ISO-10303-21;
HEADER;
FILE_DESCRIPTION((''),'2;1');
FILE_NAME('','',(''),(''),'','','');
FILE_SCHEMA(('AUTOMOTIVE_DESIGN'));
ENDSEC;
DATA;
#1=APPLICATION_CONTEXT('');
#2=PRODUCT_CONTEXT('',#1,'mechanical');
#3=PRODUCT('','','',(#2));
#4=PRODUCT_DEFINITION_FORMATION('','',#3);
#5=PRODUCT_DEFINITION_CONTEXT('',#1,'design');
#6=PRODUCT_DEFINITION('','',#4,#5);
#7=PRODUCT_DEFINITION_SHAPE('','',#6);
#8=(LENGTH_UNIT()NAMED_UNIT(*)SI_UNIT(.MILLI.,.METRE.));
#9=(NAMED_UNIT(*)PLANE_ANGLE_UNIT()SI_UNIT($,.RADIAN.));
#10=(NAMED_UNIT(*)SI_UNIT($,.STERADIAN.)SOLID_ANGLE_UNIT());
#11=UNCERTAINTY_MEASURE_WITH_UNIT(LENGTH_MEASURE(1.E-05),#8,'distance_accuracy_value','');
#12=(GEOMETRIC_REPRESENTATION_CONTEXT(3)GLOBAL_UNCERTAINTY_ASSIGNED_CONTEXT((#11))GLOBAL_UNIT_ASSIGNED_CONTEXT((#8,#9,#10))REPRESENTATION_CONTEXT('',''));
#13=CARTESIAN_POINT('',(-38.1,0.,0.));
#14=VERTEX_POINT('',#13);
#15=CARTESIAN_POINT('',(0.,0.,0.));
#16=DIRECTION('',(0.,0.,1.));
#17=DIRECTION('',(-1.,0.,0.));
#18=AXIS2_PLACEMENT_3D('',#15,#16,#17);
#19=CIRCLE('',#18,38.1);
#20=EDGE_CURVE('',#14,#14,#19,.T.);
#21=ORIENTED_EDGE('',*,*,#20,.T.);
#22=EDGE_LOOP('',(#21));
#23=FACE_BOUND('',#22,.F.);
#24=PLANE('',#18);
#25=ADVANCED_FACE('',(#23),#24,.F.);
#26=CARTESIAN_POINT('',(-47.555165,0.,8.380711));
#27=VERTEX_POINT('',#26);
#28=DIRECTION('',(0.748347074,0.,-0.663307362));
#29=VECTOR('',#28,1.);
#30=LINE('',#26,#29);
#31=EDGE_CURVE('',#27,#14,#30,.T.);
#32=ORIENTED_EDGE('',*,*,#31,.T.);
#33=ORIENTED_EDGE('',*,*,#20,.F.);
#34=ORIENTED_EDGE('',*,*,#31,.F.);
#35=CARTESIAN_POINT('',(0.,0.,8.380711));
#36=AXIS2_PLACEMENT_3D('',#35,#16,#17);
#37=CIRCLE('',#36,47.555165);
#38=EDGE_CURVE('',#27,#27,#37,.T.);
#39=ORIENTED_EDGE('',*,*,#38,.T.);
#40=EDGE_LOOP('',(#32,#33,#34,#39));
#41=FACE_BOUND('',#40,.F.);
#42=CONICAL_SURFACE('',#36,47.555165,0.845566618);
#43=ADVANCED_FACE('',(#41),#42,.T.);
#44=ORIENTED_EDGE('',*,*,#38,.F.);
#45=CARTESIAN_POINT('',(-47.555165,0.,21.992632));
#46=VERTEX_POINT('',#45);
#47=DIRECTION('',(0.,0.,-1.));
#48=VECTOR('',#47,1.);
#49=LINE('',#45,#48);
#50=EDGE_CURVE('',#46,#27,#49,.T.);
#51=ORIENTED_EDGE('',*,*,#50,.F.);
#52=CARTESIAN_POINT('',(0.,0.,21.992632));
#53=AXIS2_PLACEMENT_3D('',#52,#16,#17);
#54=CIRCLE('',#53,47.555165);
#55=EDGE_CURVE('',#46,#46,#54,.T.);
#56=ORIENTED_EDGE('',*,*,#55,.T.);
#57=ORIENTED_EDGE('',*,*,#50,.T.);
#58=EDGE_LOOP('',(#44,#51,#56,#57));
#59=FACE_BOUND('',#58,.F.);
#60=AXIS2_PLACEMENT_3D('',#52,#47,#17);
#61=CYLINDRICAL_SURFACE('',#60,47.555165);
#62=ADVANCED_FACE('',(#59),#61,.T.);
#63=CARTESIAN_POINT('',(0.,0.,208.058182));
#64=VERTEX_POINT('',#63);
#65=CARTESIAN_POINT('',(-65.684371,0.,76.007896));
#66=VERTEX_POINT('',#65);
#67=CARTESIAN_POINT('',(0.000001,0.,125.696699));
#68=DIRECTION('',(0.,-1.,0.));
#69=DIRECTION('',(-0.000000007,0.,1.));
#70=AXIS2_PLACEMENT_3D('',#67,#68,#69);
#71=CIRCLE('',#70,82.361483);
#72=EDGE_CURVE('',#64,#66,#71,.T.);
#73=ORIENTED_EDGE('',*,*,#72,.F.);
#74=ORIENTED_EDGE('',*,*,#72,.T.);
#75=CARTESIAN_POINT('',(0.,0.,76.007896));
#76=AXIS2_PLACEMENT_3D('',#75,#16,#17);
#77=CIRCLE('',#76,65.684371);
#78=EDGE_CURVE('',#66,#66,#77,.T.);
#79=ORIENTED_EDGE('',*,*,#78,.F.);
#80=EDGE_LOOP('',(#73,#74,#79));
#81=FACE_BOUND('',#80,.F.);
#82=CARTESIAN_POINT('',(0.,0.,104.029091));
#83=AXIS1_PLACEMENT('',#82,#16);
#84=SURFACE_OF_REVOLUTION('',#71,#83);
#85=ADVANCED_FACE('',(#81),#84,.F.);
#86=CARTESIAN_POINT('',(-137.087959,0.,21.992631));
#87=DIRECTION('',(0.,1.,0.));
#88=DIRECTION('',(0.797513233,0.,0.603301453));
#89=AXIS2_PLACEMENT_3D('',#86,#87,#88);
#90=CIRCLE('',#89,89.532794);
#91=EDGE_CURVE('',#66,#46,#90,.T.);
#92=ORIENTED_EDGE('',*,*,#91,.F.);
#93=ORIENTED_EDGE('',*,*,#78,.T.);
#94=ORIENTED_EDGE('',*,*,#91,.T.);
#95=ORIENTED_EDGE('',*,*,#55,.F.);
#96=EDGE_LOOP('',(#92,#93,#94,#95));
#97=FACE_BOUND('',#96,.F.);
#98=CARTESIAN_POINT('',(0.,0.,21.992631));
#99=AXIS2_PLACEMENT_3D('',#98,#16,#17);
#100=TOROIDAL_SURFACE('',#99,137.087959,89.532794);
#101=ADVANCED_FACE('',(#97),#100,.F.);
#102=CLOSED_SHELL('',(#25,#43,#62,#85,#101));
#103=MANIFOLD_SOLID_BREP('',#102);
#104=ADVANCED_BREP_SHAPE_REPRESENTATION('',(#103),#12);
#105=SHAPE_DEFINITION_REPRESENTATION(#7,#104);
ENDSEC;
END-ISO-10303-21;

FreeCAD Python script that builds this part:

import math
import FreeCAD as App
import Part
import Sketcher
Q = App.Units.Quantity

doc = App.newDocument("Part")
body = doc.addObject("PartDesign::Body", "Body")

# Sketch on XZ plane
sketch1 = body.newObject("Sketcher::SketchObject", "Sketch")
sketch1.AttachmentSupport = (doc.getObject("XZ_Plane"), [""])
sketch1.MapMode = "FlatFace"
sketch1.addGeometry(Part.LineSegment(App.Vector(-48, 8, 0), App.Vector(-38, 0, 0)), False)
sketch1.addGeometry(Part.LineSegment(App.Vector(-38, 0, 0), App.Vector(0, 0, 0)), False)
sketch1.addGeometry(Part.LineSegment(App.Vector(0, 0, 0), App.Vector(0, 208, 0)), False)
sketch1.addGeometry(Part.ArcOfCircle(Part.Circle(App.Vector(0, 126, 0), App.Vector(0, 0, 1), 82), math.radians(90), math.radians(217)), False)
sketch1.addGeometry(Part.ArcOfCircle(Part.Circle(App.Vector(-137, 22, 0), App.Vector(0, 0, 1), 90), math.radians(0), math.radians(37)), False)
sketch1.addGeometry(Part.LineSegment(App.Vector(-48, 22, 0), App.Vector(-48, 8, 0)), False)
sketch1.addConstraint(Sketcher.Constraint("Coincident", 0, 2, 1, 1))
sketch1.addConstraint(Sketcher.Constraint("Coincident", 1, 2, 2, 1))
sketch1.addConstraint(Sketcher.Constraint("Coincident", 2, 2, 3, 1))
sketch1.addConstraint(Sketcher.Constraint("Tangent", 3, 2, 4, 2))
sketch1.addConstraint(Sketcher.Constraint("Tangent", 4, 1, 5, 1))
sketch1.addConstraint(Sketcher.Constraint("Coincident", 5, 2, 0, 1))
sketch1.addConstraint(Sketcher.Constraint("Horizontal", 1))
sketch1.addConstraint(Sketcher.Constraint("Vertical", 2))
sketch1.addConstraint(Sketcher.Constraint("Vertical", 5))
sketch1.addConstraint(Sketcher.Constraint("Coincident", 1, 2, -1, 1))
sketch1.addConstraint(Sketcher.Constraint("PointOnObject", 3, 3, -2))
sketch1.addConstraint(Sketcher.Constraint("DistanceX", 1, 1, 1, 2, Q("1.5 in")))
sketch1.addConstraint(Sketcher.Constraint("Radius", 3, 82.361483))
sketch1.addConstraint(Sketcher.Constraint("Radius", 4, 89.532794))
sketch1.addConstraint(Sketcher.Constraint("DistanceY", 2, 1, 2, 2, 208.058182))
sketch1.addConstraint(Sketcher.Constraint("DistanceY", 5, 2, 5, 1, 13.611921))
sketch1.addConstraint(Sketcher.Constraint("DistanceX", 4, 3, -1, 1, 137.087959))
revolution = body.newObject("PartDesign::Revolution", "Revolution")
revolution.Profile = sketch1
revolution.ReferenceAxis = (sketch1, ["V_Axis"])
revolution.Angle = 360

doc.recompute()
